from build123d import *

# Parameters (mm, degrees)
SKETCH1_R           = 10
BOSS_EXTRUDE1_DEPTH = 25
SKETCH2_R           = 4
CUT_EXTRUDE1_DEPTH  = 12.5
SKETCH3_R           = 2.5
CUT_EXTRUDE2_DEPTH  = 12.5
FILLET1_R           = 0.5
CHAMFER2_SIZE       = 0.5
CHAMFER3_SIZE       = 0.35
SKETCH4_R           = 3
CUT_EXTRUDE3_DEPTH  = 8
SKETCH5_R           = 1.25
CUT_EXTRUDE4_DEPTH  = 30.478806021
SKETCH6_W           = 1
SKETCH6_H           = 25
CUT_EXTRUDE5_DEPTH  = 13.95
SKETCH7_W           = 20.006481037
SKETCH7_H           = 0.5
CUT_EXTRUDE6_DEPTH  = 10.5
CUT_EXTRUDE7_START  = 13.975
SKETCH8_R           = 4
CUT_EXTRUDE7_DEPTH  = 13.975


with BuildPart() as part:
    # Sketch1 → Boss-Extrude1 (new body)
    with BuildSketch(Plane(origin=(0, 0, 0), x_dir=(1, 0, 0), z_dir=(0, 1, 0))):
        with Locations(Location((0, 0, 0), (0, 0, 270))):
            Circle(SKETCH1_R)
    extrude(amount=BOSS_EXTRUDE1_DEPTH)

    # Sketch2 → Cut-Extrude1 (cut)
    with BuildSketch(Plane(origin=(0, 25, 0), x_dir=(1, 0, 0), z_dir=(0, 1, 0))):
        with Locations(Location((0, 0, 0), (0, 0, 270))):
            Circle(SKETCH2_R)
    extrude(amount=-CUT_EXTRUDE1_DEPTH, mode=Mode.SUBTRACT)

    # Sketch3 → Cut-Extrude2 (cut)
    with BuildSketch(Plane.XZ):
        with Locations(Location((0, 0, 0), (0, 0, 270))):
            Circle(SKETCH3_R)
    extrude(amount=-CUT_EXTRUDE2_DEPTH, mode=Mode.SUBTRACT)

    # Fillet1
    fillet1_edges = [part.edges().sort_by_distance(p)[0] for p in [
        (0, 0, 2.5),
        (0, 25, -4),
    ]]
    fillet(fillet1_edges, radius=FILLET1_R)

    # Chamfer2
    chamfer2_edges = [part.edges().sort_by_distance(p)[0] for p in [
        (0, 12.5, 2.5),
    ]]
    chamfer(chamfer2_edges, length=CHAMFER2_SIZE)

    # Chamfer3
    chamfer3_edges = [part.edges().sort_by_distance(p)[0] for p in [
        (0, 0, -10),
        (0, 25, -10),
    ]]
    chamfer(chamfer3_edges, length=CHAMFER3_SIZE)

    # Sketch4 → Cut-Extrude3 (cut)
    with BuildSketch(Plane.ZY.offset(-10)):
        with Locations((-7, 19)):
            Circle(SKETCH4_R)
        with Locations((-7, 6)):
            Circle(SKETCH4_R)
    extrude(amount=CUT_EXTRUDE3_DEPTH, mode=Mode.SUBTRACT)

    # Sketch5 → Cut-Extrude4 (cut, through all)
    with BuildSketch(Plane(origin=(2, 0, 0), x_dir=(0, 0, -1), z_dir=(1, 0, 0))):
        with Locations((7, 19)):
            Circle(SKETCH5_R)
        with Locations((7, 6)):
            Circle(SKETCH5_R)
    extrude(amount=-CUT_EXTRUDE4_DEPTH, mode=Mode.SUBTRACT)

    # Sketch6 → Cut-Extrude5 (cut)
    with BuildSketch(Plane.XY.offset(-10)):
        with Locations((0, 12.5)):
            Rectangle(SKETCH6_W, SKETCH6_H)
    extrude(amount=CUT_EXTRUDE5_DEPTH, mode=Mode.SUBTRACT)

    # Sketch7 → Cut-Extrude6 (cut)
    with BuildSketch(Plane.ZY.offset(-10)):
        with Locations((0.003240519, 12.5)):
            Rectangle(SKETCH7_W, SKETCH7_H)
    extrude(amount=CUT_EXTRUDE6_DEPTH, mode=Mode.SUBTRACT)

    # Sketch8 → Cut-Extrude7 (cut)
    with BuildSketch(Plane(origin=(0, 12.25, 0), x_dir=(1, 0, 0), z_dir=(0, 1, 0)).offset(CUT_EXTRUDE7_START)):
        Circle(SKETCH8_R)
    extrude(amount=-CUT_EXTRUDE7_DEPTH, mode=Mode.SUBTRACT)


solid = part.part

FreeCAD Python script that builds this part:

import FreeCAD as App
import Part
import Sketcher

V = App.Vector


def edges_at(feature, points):
    """Names of the edges that pass closest to the given points."""
    edges = feature.Shape.Edges
    near = lambda p: min(range(len(edges)), key=lambda i: edges[i].distToShape(Part.Vertex(*p))[0])
    return sorted({f"Edge{near(p) + 1}" for p in points})


def add_polygon(sketch, points):
    """Adds a closed chain of lines whose ends are joined by coincident constraints."""
    first, n = sketch.GeometryCount, len(points)
    for a, b in zip(points, points[1:] + points[:1]):
        sketch.addGeometry(Part.LineSegment(App.Vector(*a, 0), App.Vector(*b, 0)), False)
    for i in range(n):
        sketch.addConstraint(Sketcher.Constraint("Coincident", first + i, 2, first + (i + 1) % n, 1))

doc = App.newDocument("Part")
body = doc.addObject("PartDesign::Body", "Body")

# Sketch on XZ plane
sketch1 = doc.addObject("Sketcher::SketchObject", "Sketch")
body.addObject(sketch1)
sketch1.AttachmentSupport = (doc.XZ_Plane, [""])
sketch1.MapMode = "FlatFace"
sketch1.addGeometry(Part.Circle(V(0, 0, 0), V(0, 0, 1), 10), False)
sketch1.addConstraint([
    Sketcher.Constraint("Coincident", 0, 3, -1, 1),
    Sketcher.Constraint("Diameter", 0, 20.0),
])
pad1 = doc.addObject("PartDesign::Pad", "Pad")
body.addObject(pad1)
pad1.Profile = sketch1
pad1.Length = 25
pad1.Reversed = True

# Sketch on XZ plane
sketch2 = doc.addObject("Sketcher::SketchObject", "Sketch001")
body.addObject(sketch2)
sketch2.AttachmentSupport = (doc.XZ_Plane, [""])
sketch2.MapMode = "FlatFace"
sketch2.AttachmentOffset = App.Placement(V(0, 0, -25), App.Rotation())
sketch2.addGeometry(Part.Circle(V(0, 0, 0), V(0, 0, 1), 4), False)
sketch2.addConstraint([
    Sketcher.Constraint("Coincident", 0, 3, -1, 1),
    Sketcher.Constraint("Diameter", 0, 8.0),
])
pocket1 = doc.addObject("PartDesign::Pocket", "Pocket")
body.addObject(pocket1)
pocket1.Profile = sketch2
pocket1.Length = 12.5
pocket1.Reversed = True

# Sketch on XZ plane
sketch3 = doc.addObject("Sketcher::SketchObject", "Sketch002")
body.addObject(sketch3)
sketch3.AttachmentSupport = (doc.XZ_Plane, [""])
sketch3.MapMode = "FlatFace"
sketch3.addGeometry(Part.Circle(V(0, 0, 0), V(0, 0, 1), 2.5), False)
sketch3.addConstraint([
    Sketcher.Constraint("Coincident", 0, 3, -1, 1),
    Sketcher.Constraint("Diameter", 0, 5.0),
])
pocket2 = doc.addObject("PartDesign::Pocket", "Pocket001")
body.addObject(pocket2)
pocket2.Profile = sketch3
pocket2.Length = 12.5
doc.recompute()

fillet = doc.addObject("PartDesign::Fillet", "Fillet")
body.addObject(fillet)
fillet.Base = (pocket2, edges_at(pocket2, [(0, 0, 2.5), (0, 25, -4)]))
fillet.Radius = 0.5
doc.recompute()

chamfer = doc.addObject("PartDesign::Chamfer", "Chamfer")
body.addObject(chamfer)
chamfer.Base = (fillet, edges_at(fillet, [(0, 12.5, 2.5)]))
chamfer.Size = 0.5
doc.recompute()

chamfer2 = doc.addObject("PartDesign::Chamfer", "Chamfer001")
body.addObject(chamfer2)
chamfer2.Base = (chamfer, edges_at(chamfer, [(0, 0, -10), (0, 25, -10)]))
chamfer2.Size = 0.35

# Sketch on YZ plane
sketch4 = doc.addObject("Sketcher::SketchObject", "Sketch003")
body.addObject(sketch4)
sketch4.AttachmentSupport = (doc.YZ_Plane, [""])
sketch4.MapMode = "FlatFace"
sketch4.AttachmentOffset = App.Placement(V(0, 0, 10), App.Rotation())
sketch4.addGeometry([
    Part.Circle(V(19, -7, 0), V(0, 0, 1), 3),
    Part.Circle(V(6, -7, 0), V(0, 0, 1), 3),
], False)
sketch4.addConstraint([
    Sketcher.Constraint("Equal", 0, 1),
    Sketcher.Constraint("Horizontal", 0, 3, 1, 3),
    Sketcher.Constraint("Diameter", 0, 6.0),
    Sketcher.Constraint("DistanceX", -1, 1, 0, 3, 19.0),
    Sketcher.Constraint("DistanceY", 0, 3, -1, 1, 7.0),
    Sketcher.Constraint("DistanceX", -1, 1, 1, 3, 6.0),
])
pocket3 = doc.addObject("PartDesign::Pocket", "Pocket002")
body.addObject(pocket3)
pocket3.Profile = sketch4
pocket3.Length = 8

# Sketch on YZ plane
sketch5 = doc.addObject("Sketcher::SketchObject", "Sketch004")
body.addObject(sketch5)
sketch5.AttachmentSupport = (doc.YZ_Plane, [""])
sketch5.MapMode = "FlatFace"
sketch5.AttachmentOffset = App.Placement(V(0, 0, 2), App.Rotation())
sketch5.addGeometry([
    Part.Circle(V(19, -7, 0), V(0, 0, 1), 1.25),
    Part.Circle(V(6, -7, 0), V(0, 0, 1), 1.25),
], False)
sketch5.addConstraint([
    Sketcher.Constraint("Equal", 0, 1),
    Sketcher.Constraint("Horizontal", 0, 3, 1, 3),
    Sketcher.Constraint("Diameter", 0, 2.5),
    Sketcher.Constraint("DistanceX", -1, 1, 0, 3, 19.0),
    Sketcher.Constraint("DistanceY", 0, 3, -1, 1, 7.0),
    Sketcher.Constraint("DistanceX", -1, 1, 1, 3, 6.0),
])
pocket4 = doc.addObject("PartDesign::Pocket", "Pocket003")
body.addObject(pocket4)
pocket4.Profile = sketch5
pocket4.Type = "ThroughAll"

# Sketch on XY plane
sketch6 = doc.addObject("Sketcher::SketchObject", "Sketch005")
body.addObject(sketch6)
sketch6.AttachmentSupport = (doc.XY_Plane, [""])
sketch6.MapMode = "FlatFace"
sketch6.AttachmentOffset = App.Placement(V(0, 0, -10), App.Rotation())
add_polygon(sketch6, [(-0.5, 25), (-0.5, 0), (0.5, 0), (0.5, 25)])  # lines 0-3
sketch6.addConstraint([
    Sketcher.Constraint("Vertical", 0),
    Sketcher.Constraint("Horizontal", 1),
    Sketcher.Constraint("Vertical", 2),
    Sketcher.Constraint("Horizontal", 3),
    Sketcher.Constraint("Symmetric", 0, 2, 1, 2, -1, 1),
    Sketcher.Constraint("DistanceX", 1, 1, 1, 2, 1.0),
    Sketcher.Constraint("DistanceY", 0, 2, 0, 1, 25.0),
])
pocket5 = doc.addObject("PartDesign::Pocket", "Pocket004")
body.addObject(pocket5)
pocket5.Profile = sketch6
pocket5.Length = 13.95
pocket5.Reversed = True

# Sketch on YZ plane
sketch7 = doc.addObject("Sketcher::SketchObject", "Sketch006")
body.addObject(sketch7)
sketch7.AttachmentSupport = (doc.YZ_Plane, [""])
sketch7.MapMode = "FlatFace"
sketch7.AttachmentOffset = App.Placement(V(0, 0, 10), App.Rotation())
add_polygon(sketch7, [(12.75, -10), (12.25, -10), (12.25, 10.006481), (12.75, 10.006481)])  # lines 0-3
sketch7.addConstraint([
    Sketcher.Constraint("Horizontal", 0),
    Sketcher.Constraint("Vertical", 1),
    Sketcher.Constraint("Horizontal", 2),
    Sketcher.Constraint("Vertical", 3),
    Sketcher.Constraint("DistanceX", 0, 2, 0, 1, 0.5),
    Sketcher.Constraint("DistanceY", 0, 2, -1, 1, 10.0),
    Sketcher.Constraint("DistanceX", -1, 1, 0, 2, 12.25),
    Sketcher.Constraint("DistanceY", 1, 1, 1, 2, 20.006481),
])
pocket6 = doc.addObject("PartDesign::Pocket", "Pocket005")
body.addObject(pocket6)
pocket6.Profile = sketch7
pocket6.Length = 10.5

# Sketch on XZ plane
sketch8 = doc.addObject("Sketcher::SketchObject", "Sketch007")
body.addObject(sketch8)
sketch8.AttachmentSupport = (doc.XZ_Plane, [""])
sketch8.MapMode = "FlatFace"
sketch8.AttachmentOffset = App.Placement(V(0, 0, -26.225), App.Rotation())
sketch8.addGeometry(Part.Circle(V(0, 0, 0), V(0, 0, 1), 4), False)
sketch8.addConstraint([
    Sketcher.Constraint("Coincident", 0, 3, -1, 1),
    Sketcher.Constraint("Diameter", 0, 8.0),
])
pocket7 = doc.addObject("PartDesign::Pocket", "Pocket006")
body.addObject(pocket7)
pocket7.Profile = sketch8
pocket7.Length = 13.975
pocket7.Reversed = True

doc.recompute()
